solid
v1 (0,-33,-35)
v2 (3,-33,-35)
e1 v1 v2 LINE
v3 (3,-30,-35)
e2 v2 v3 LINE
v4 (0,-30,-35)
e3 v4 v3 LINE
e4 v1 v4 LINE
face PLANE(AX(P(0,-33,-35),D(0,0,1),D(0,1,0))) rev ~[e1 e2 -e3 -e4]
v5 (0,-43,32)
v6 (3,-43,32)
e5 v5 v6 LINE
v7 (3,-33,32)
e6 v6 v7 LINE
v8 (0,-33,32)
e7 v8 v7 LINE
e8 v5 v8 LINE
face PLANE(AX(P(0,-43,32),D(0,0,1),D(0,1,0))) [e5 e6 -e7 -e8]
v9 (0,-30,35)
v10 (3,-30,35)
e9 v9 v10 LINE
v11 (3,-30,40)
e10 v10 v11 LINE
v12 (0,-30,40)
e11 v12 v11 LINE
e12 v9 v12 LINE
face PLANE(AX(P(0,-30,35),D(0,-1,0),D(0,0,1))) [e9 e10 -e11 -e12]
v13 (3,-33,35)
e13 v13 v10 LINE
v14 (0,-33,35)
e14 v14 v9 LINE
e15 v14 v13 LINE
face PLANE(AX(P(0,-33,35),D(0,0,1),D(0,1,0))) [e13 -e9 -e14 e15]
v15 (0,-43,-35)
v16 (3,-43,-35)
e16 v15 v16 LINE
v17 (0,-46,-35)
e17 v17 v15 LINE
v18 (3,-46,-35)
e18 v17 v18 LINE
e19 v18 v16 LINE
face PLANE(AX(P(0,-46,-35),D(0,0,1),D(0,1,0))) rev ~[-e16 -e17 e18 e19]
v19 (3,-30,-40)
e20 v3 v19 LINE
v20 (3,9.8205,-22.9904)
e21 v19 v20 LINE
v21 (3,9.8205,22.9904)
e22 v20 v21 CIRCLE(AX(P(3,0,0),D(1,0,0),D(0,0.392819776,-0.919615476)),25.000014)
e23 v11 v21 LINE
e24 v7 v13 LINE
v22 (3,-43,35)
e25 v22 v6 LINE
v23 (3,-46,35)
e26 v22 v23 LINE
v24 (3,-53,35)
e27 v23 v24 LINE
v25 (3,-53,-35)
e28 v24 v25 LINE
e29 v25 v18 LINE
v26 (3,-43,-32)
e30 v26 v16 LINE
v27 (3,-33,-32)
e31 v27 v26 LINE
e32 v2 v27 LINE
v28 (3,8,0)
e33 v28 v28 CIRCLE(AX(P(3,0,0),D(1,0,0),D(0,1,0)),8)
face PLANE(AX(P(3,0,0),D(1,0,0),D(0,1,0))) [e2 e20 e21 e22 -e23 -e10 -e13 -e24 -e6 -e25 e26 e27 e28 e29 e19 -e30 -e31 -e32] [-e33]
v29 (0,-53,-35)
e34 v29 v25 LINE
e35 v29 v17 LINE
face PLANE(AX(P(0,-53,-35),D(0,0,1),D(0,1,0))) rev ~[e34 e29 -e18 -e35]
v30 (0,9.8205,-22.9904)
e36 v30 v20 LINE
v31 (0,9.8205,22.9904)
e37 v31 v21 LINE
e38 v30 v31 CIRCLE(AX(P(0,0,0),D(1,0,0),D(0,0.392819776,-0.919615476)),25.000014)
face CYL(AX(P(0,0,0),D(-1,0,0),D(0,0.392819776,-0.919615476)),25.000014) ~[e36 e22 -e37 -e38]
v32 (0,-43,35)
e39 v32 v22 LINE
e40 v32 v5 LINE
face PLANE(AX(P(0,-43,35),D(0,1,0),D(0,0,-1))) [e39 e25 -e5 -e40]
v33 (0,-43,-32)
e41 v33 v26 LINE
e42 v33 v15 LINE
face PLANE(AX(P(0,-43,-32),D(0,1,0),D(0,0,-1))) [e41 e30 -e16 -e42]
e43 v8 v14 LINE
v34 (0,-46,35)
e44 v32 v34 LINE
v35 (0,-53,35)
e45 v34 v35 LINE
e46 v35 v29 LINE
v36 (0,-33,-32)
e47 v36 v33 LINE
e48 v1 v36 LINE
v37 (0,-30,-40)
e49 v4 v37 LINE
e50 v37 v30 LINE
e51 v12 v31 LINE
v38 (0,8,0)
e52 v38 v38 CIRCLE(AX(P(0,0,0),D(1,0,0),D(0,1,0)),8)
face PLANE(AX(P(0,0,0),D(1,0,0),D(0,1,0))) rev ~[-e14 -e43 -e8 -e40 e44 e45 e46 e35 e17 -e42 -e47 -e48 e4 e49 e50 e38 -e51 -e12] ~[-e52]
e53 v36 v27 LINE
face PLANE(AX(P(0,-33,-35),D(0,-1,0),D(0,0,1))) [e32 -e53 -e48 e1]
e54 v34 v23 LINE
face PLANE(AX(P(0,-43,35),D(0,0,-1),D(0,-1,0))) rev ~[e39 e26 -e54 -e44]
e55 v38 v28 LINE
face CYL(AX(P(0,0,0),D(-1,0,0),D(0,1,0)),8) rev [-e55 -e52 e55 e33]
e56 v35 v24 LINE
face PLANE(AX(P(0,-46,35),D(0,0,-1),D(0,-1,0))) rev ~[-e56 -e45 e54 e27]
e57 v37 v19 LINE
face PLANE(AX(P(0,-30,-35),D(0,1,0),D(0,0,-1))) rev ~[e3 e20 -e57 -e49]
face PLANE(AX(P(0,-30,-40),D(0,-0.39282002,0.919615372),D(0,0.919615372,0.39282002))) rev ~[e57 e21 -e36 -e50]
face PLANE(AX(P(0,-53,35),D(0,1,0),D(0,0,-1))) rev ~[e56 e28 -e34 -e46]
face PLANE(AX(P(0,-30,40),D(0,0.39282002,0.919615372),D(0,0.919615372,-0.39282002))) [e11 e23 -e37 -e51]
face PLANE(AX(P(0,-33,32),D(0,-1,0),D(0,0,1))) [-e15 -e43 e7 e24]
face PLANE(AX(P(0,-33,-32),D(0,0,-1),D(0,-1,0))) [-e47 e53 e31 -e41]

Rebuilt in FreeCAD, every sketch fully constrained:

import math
import FreeCAD as App
import Part
import Sketcher

doc = App.newDocument("Part")
body = doc.addObject("PartDesign::Body", "Body")

sketch1 = doc.addObject("Sketcher::SketchObject", "Sketch")
body.addObject(sketch1)
sketch1.AttachmentSupport = (doc.YZ_Plane, [""])
sketch1.MapMode = "FlatFace"
sketch1.addGeometry(Part.LineSegment(App.Vector(-30, -35, 0), App.Vector(-30, -40, 0)), False)
sketch1.addGeometry(Part.LineSegment(App.Vector(-30, -40, 0), App.Vector(9.8, -23, 0)), False)
sketch1.addGeometry(Part.ArcOfCircle(Part.Circle(App.Vector(0, 0, 0), App.Vector(0, 0, 1), 25), math.radians(-67), math.radians(67)), False)
sketch1.addGeometry(Part.LineSegment(App.Vector(9.8, 23, 0), App.Vector(-30, 40, 0)), False)
sketch1.addGeometry(Part.LineSegment(App.Vector(-30, 40, 0), App.Vector(-30, 35, 0)), False)
sketch1.addGeometry(Part.LineSegment(App.Vector(-30, 35, 0), App.Vector(-33, 35, 0)), False)
sketch1.addGeometry(Part.LineSegment(App.Vector(-33, 35, 0), App.Vector(-33, 32, 0)), False)
sketch1.addGeometry(Part.LineSegment(App.Vector(-33, 32, 0), App.Vector(-43, 32, 0)), False)
sketch1.addGeometry(Part.LineSegment(App.Vector(-43, 32, 0), App.Vector(-43, 35, 0)), False)
sketch1.addGeometry(Part.LineSegment(App.Vector(-43, 35, 0), App.Vector(-53, 35, 0)), False)
sketch1.addGeometry(Part.LineSegment(App.Vector(-53, 35, 0), App.Vector(-53, -35, 0)), False)
sketch1.addGeometry(Part.LineSegment(App.Vector(-53, -35, 0), App.Vector(-43, -35, 0)), False)
sketch1.addGeometry(Part.LineSegment(App.Vector(-43, -35, 0), App.Vector(-43, -32, 0)), False)
sketch1.addGeometry(Part.LineSegment(App.Vector(-43, -32, 0), App.Vector(-33, -32, 0)), False)
sketch1.addGeometry(Part.LineSegment(App.Vector(-33, -32, 0), App.Vector(-33, -35, 0)), False)
sketch1.addGeometry(Part.LineSegment(App.Vector(-33, -35, 0), App.Vector(-30, -35, 0)), False)
sketch1.addGeometry(Part.Circle(App.Vector(0, 0, 0), App.Vector(0, 0, 1), 8), False)
sketch1.addConstraint(Sketcher.Constraint("Coincident", 0, 2, 1, 1))
sketch1.addConstraint(Sketcher.Constraint("Tangent", 1, 2, 2, 1))
sketch1.addConstraint(Sketcher.Constraint("Tangent", 2, 2, 3, 1))
sketch1.addConstraint(Sketcher.Constraint("Coincident", 3, 2, 4, 1))
sketch1.addConstraint(Sketcher.Constraint("Coincident", 4, 2, 5, 1))
sketch1.addConstraint(Sketcher.Constraint("Coincident", 5, 2, 6, 1))
sketch1.addConstraint(Sketcher.Constraint("Coincident", 6, 2, 7, 1))
sketch1.addConstraint(Sketcher.Constraint("Coincident", 7, 2, 8, 1))
sketch1.addConstraint(Sketcher.Constraint("Coincident", 8, 2, 9, 1))
sketch1.addConstraint(Sketcher.Constraint("Coincident", 9, 2, 10, 1))
sketch1.addConstraint(Sketcher.Constraint("Coincident", 10, 2, 11, 1))
sketch1.addConstraint(Sketcher.Constraint("Coincident", 11, 2, 12, 1))
sketch1.addConstraint(Sketcher.Constraint("Coincident", 12, 2, 13, 1))
sketch1.addConstraint(Sketcher.Constraint("Coincident", 13, 2, 14, 1))
sketch1.addConstraint(Sketcher.Constraint("Coincident", 14, 2, 15, 1))
sketch1.addConstraint(Sketcher.Constraint("Coincident", 15, 2, 0, 1))
sketch1.addConstraint(Sketcher.Constraint("Vertical", 0))
sketch1.addConstraint(Sketcher.Constraint("Vertical", 4))
sketch1.addConstraint(Sketcher.Constraint("Horizontal", 5))
sketch1.addConstraint(Sketcher.Constraint("Vertical", 6))
sketch1.addConstraint(Sketcher.Constraint("Horizontal", 7))
sketch1.addConstraint(Sketcher.Constraint("Vertical", 8))
sketch1.addConstraint(Sketcher.Constraint("Horizontal", 9))
sketch1.addConstraint(Sketcher.Constraint("Vertical", 10))
sketch1.addConstraint(Sketcher.Constraint("Horizontal", 11))
sketch1.addConstraint(Sketcher.Constraint("Vertical", 12))
sketch1.addConstraint(Sketcher.Constraint("Horizontal", 13))
sketch1.addConstraint(Sketcher.Constraint("Vertical", 14))
sketch1.addConstraint(Sketcher.Constraint("Horizontal", 15))
sketch1.addConstraint(Sketcher.Constraint("Coincident", 2, 3, -1, 1))
sketch1.addConstraint(Sketcher.Constraint("Coincident", 16, 3, -1, 1))
sketch1.addConstraint(Sketcher.Constraint("Symmetric", 0, 2, 3, 2, -1))
sketch1.addConstraint(Sketcher.Constraint("Symmetric", 8, 2, 11, 2, -1))
sketch1.addConstraint(Sketcher.Constraint("Symmetric", 6, 2, 13, 2, -1))
sketch1.addConstraint(Sketcher.Constraint("Horizontal", 5, 2, 8, 2))
sketch1.addConstraint(Sketcher.Constraint("Horizontal", 11, 2, 14, 2))
sketch1.addConstraint(Sketcher.Constraint("Equal", 7, 9))
sketch1.addConstraint(Sketcher.Constraint("Equal", 15, 6))
sketch1.addConstraint(Sketcher.Constraint("Diameter", 16, 16.0))
sketch1.addConstraint(Sketcher.Constraint("Radius", 2, 25.0))
sketch1.addConstraint(Sketcher.Constraint("DistanceX", 5, 2, 5, 1, 3.0))
sketch1.addConstraint(Sketcher.Constraint("DistanceX", 7, 2, 7, 1, 10.0))
sketch1.addConstraint(Sketcher.Constraint("DistanceY", 10, 2, 10, 1, 70.0))
sketch1.addConstraint(Sketcher.Constraint("DistanceX", 0, 2, -1, 1, 30.0))
sketch1.addConstraint(Sketcher.Constraint("DistanceY", 0, 2, -1, 1, 40.0))
pad1 = doc.addObject("PartDesign::Pad", "Pad")
body.addObject(pad1)
pad1.Profile = sketch1
pad1.Length = 3

doc.recompute()
